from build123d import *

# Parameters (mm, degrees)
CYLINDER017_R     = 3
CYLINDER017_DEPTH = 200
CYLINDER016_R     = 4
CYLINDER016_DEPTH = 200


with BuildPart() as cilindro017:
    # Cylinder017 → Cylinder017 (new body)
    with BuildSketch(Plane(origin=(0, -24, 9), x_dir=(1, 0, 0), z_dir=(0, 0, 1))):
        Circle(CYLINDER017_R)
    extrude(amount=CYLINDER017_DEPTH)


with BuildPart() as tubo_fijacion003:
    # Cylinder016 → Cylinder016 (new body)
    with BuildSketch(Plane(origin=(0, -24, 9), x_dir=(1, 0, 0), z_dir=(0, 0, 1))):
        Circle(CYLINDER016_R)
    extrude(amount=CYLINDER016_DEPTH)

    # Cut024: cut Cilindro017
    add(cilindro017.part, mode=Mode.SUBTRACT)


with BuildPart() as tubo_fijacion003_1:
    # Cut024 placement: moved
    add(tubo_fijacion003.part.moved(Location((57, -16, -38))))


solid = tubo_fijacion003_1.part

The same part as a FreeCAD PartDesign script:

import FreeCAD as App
import Part
import Sketcher
Q = App.Units.Quantity

doc = App.newDocument("Part")
body = doc.addObject("PartDesign::Body", "Body")

# Sketch on XY plane
sketch1 = body.newObject("Sketcher::SketchObject", "Sketch")
sketch1.AttachmentSupport = (doc.getObject("XY_Plane"), [""])
sketch1.MapMode = "FlatFace"
sketch1.AttachmentOffset = App.Placement(App.Vector(0, 0, 9), App.Rotation())
sketch1.addGeometry(Part.Circle(App.Vector(0, -24, 0), App.Vector(0, 0, 1), 3), False)
sketch1.addConstraint(Sketcher.Constraint("PointOnObject", 0, 3, -2))
sketch1.addConstraint(Sketcher.Constraint("Diameter", 0, Q("6 mm")))
sketch1.addConstraint(Sketcher.Constraint("DistanceY", 0, 3, -1, 1, Q("24 mm")))
pad1 = body.newObject("PartDesign::Pad", "Pad")
pad1.Profile = sketch1
pad1.Length = 200
body2 = doc.addObject("PartDesign::Body", "Body001")

# Sketch on XY plane
sketch2 = body2.newObject("Sketcher::SketchObject", "Sketch001")
sketch2.AttachmentSupport = (doc.getObject("XY_Plane001"), [""])
sketch2.MapMode = "FlatFace"
sketch2.AttachmentOffset = App.Placement(App.Vector(0, 0, 9), App.Rotation())
sketch2.addGeometry(Part.Circle(App.Vector(0, -24, 0), App.Vector(0, 0, 1), 4), False)
sketch2.addConstraint(Sketcher.Constraint("PointOnObject", 0, 3, -2))
sketch2.addConstraint(Sketcher.Constraint("Diameter", 0, Q("8 mm")))
sketch2.addConstraint(Sketcher.Constraint("DistanceY", 0, 3, -1, 1, Q("24 mm")))
pad2 = body2.newObject("PartDesign::Pad", "Pad001")
pad2.Profile = sketch2
pad2.Length = 200
doc.recompute()

boolean = body2.newObject("PartDesign::Boolean", "Boolean")
boolean.Type = "Cut"
boolean.addObjects([body])
body3 = doc.addObject("PartDesign::Body", "Body002")
doc.recompute()

body2.Placement = App.Placement(App.Vector(57, -16, -38), App.Rotation(App.Vector(0, 0, 1), 0))
boolean2 = body3.newObject("PartDesign::Boolean", "Boolean001")
boolean2.Type = "Fuse"
boolean2.addObjects([body2])

doc.recompute()
